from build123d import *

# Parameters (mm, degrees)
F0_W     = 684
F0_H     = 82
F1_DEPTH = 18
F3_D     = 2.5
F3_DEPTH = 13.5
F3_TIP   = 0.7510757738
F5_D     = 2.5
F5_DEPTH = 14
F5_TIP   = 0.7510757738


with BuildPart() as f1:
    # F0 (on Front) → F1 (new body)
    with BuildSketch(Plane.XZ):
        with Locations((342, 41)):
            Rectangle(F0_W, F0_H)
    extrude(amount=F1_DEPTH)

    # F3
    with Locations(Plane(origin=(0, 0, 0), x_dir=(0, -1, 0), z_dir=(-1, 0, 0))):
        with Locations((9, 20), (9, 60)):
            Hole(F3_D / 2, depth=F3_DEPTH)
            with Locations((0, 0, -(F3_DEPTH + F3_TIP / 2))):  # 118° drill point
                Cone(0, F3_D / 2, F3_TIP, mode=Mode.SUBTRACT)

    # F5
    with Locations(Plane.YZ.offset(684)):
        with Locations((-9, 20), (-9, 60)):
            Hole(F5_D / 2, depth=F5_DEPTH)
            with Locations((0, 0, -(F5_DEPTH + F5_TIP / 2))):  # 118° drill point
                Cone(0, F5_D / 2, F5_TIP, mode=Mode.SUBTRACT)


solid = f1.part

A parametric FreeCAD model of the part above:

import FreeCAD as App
import Part
import Sketcher

V = App.Vector
Q = App.Units.Quantity

doc = App.newDocument("Part")
body = doc.addObject("PartDesign::Body", "Body")

sketch1 = body.newObject("Sketcher::SketchObject", "Sketch")
sketch1.AttachmentSupport = (doc.getObject("XZ_Plane"), [""])
sketch1.MapMode = "FlatFace"
sketch1.addGeometry(Part.LineSegment(V(0, 82, 0), V(0, 0, 0)), False)
sketch1.addGeometry(Part.LineSegment(V(0, 0, 0), V(684, 0, 0)), False)
sketch1.addGeometry(Part.LineSegment(V(684, 0, 0), V(684, 82, 0)), False)
sketch1.addGeometry(Part.LineSegment(V(684, 82, 0), V(0, 82, 0)), False)
sketch1.addConstraint(Sketcher.Constraint("Coincident", 0, 2, 1, 1))
sketch1.addConstraint(Sketcher.Constraint("Coincident", 1, 2, 2, 1))
sketch1.addConstraint(Sketcher.Constraint("Coincident", 2, 2, 3, 1))
sketch1.addConstraint(Sketcher.Constraint("Coincident", 3, 2, 0, 1))
sketch1.addConstraint(Sketcher.Constraint("Vertical", 0))
sketch1.addConstraint(Sketcher.Constraint("Horizontal", 1))
sketch1.addConstraint(Sketcher.Constraint("Vertical", 2))
sketch1.addConstraint(Sketcher.Constraint("Horizontal", 3))
sketch1.addConstraint(Sketcher.Constraint("Coincident", 0, 2, -1, 1))
sketch1.addConstraint(Sketcher.Constraint("DistanceX", 1, 1, 1, 2, Q("684 mm")))
sketch1.addConstraint(Sketcher.Constraint("DistanceY", 0, 2, 0, 1, Q("82 mm")))
pad1 = body.newObject("PartDesign::Pad", "Pad")
pad1.Profile = sketch1
pad1.Length = 18

sketch2 = body.newObject("Sketcher::SketchObject", "Sketch001")
sketch2.AttachmentSupport = (doc.getObject("YZ_Plane"), [""])
sketch2.MapMode = "FlatFace"
sketch2.addGeometry(Part.Circle(V(-9, 20, 0), V(0, 0, 1), 1.2), False)
sketch2.addGeometry(Part.Circle(V(-9, 60, 0), V(0, 0, 1), 1.2), False)
sketch2.addConstraint(Sketcher.Constraint("Equal", 0, 1))
sketch2.addConstraint(Sketcher.Constraint("Vertical", 0, 3, 1, 3))
sketch2.addConstraint(Sketcher.Constraint("Diameter", 0, Q("2.5 mm")))
sketch2.addConstraint(Sketcher.Constraint("DistanceX", 0, 3, -1, 1, Q("9 mm")))
sketch2.addConstraint(Sketcher.Constraint("DistanceY", -1, 1, 0, 3, Q("20 mm")))
sketch2.addConstraint(Sketcher.Constraint("DistanceY", -1, 1, 1, 3, Q("60 mm")))
doc.recompute()
hole = body.newObject("PartDesign::Hole", "Hole")
hole.Profile = sketch2
hole.ThreadType = "None"
hole.Diameter = 2.5
hole.DepthType = "Dimension"
hole.Depth = 13.5
hole.DrillPoint = "Angled"
hole.DrillPointAngle = 118
hole.Reversed = True

sketch3 = body.newObject("Sketcher::SketchObject", "Sketch002")
sketch3.AttachmentSupport = (doc.getObject("YZ_Plane"), [""])
sketch3.MapMode = "FlatFace"
sketch3.AttachmentOffset = App.Placement(V(0, 0, 684), App.Rotation())
sketch3.addGeometry(Part.Circle(V(-9, 20, 0), V(0, 0, 1), 1.2), False)
sketch3.addGeometry(Part.Circle(V(-9, 60, 0), V(0, 0, 1), 1.2), False)
sketch3.addConstraint(Sketcher.Constraint("Equal", 0, 1))
sketch3.addConstraint(Sketcher.Constraint("Vertical", 0, 3, 1, 3))
sketch3.addConstraint(Sketcher.Constraint("Diameter", 0, Q("2.5 mm")))
sketch3.addConstraint(Sketcher.Constraint("DistanceX", 0, 3, -1, 1, Q("9 mm")))
sketch3.addConstraint(Sketcher.Constraint("DistanceY", -1, 1, 0, 3, Q("20 mm")))
sketch3.addConstraint(Sketcher.Constraint("DistanceY", -1, 1, 1, 3, Q("60 mm")))
doc.recompute()
hole2 = body.newObject("PartDesign::Hole", "Hole001")
hole2.Profile = sketch3
hole2.ThreadType = "None"
hole2.Diameter = 2.5
hole2.DepthType = "Dimension"
hole2.Depth = 14
hole2.DrillPoint = "Angled"
hole2.DrillPointAngle = 118

doc.recompute()
